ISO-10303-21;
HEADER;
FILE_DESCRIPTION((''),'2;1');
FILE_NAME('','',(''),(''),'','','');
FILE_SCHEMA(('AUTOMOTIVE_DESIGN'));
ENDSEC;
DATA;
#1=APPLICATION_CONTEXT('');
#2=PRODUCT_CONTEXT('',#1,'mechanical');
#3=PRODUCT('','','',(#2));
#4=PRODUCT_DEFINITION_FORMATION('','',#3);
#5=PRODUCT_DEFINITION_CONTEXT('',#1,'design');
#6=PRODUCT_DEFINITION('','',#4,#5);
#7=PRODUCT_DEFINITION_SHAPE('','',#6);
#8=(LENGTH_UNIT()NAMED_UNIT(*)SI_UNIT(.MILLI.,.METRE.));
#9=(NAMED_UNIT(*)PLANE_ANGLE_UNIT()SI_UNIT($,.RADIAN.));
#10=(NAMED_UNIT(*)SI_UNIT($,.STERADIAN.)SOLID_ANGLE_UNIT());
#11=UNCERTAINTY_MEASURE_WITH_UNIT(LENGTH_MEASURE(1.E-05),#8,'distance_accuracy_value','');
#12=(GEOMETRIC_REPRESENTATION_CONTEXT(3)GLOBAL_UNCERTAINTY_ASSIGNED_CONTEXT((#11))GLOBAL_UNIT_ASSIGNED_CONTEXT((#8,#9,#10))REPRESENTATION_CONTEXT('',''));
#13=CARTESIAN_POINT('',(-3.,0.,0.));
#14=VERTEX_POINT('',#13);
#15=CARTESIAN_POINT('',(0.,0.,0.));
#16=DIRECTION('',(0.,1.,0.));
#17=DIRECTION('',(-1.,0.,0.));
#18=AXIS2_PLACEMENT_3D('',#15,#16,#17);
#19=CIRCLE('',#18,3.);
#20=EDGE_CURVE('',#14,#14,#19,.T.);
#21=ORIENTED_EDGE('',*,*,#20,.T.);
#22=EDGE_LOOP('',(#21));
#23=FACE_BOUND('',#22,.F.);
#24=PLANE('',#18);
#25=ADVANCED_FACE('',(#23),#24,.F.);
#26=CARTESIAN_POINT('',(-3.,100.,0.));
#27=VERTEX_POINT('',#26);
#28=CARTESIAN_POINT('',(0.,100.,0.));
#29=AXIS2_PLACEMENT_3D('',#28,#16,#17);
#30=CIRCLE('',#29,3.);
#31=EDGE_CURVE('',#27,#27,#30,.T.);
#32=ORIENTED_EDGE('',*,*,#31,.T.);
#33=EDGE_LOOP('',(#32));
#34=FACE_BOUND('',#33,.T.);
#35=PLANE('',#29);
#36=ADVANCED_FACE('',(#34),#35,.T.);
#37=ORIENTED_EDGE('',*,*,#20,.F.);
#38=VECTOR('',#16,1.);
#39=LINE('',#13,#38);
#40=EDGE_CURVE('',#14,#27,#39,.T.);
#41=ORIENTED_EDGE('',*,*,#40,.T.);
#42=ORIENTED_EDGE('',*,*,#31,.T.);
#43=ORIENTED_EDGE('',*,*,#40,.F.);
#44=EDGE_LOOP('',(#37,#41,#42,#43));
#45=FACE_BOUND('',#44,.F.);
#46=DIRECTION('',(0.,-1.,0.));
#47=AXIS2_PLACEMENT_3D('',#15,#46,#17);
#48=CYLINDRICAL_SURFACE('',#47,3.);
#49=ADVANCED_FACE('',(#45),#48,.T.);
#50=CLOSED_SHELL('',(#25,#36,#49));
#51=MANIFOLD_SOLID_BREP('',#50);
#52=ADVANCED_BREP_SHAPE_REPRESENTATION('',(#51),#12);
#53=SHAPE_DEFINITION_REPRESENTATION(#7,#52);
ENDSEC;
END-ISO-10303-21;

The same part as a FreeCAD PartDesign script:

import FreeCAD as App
import Part
import Sketcher
from FreeCAD import Vector

doc = App.newDocument("Part")
params = doc.addObject("Spreadsheet::Sheet", "Params")
for row, (alias, value) in enumerate([
    ("sketch1_diameter", "6 mm"),
    ("pad1_length", "100 mm"),
], start=1):
    params.set(f"A{row}", alias)
    params.set(f"B{row}", "=" + value)
    params.setAlias(f"B{row}", alias)

body = doc.addObject("PartDesign::Body", "Body")

sketch1 = doc.addObject("Sketcher::SketchObject", "Sketch")
body.addObject(sketch1)
sketch1.AttachmentSupport = (doc.XZ_Plane, [""])
sketch1.MapMode = "FlatFace"
sketch1.addGeometry(Part.Circle(Vector(0, 0, 0), Vector(0, 0, 1), 3), False)
sketch1.addConstraint([
    Sketcher.Constraint("Coincident", 0, 3, -1, 1),
    Sketcher.Constraint("Diameter", 0, 6.0),
])
sketch1.setExpression("Constraints[1]", "Params.sketch1_diameter")
pad1 = doc.addObject("PartDesign::Pad", "Pad")
body.addObject(pad1)
pad1.Profile = sketch1
pad1.setExpression("Length", "Params.pad1_length")
pad1.Reversed = True

doc.recompute()
